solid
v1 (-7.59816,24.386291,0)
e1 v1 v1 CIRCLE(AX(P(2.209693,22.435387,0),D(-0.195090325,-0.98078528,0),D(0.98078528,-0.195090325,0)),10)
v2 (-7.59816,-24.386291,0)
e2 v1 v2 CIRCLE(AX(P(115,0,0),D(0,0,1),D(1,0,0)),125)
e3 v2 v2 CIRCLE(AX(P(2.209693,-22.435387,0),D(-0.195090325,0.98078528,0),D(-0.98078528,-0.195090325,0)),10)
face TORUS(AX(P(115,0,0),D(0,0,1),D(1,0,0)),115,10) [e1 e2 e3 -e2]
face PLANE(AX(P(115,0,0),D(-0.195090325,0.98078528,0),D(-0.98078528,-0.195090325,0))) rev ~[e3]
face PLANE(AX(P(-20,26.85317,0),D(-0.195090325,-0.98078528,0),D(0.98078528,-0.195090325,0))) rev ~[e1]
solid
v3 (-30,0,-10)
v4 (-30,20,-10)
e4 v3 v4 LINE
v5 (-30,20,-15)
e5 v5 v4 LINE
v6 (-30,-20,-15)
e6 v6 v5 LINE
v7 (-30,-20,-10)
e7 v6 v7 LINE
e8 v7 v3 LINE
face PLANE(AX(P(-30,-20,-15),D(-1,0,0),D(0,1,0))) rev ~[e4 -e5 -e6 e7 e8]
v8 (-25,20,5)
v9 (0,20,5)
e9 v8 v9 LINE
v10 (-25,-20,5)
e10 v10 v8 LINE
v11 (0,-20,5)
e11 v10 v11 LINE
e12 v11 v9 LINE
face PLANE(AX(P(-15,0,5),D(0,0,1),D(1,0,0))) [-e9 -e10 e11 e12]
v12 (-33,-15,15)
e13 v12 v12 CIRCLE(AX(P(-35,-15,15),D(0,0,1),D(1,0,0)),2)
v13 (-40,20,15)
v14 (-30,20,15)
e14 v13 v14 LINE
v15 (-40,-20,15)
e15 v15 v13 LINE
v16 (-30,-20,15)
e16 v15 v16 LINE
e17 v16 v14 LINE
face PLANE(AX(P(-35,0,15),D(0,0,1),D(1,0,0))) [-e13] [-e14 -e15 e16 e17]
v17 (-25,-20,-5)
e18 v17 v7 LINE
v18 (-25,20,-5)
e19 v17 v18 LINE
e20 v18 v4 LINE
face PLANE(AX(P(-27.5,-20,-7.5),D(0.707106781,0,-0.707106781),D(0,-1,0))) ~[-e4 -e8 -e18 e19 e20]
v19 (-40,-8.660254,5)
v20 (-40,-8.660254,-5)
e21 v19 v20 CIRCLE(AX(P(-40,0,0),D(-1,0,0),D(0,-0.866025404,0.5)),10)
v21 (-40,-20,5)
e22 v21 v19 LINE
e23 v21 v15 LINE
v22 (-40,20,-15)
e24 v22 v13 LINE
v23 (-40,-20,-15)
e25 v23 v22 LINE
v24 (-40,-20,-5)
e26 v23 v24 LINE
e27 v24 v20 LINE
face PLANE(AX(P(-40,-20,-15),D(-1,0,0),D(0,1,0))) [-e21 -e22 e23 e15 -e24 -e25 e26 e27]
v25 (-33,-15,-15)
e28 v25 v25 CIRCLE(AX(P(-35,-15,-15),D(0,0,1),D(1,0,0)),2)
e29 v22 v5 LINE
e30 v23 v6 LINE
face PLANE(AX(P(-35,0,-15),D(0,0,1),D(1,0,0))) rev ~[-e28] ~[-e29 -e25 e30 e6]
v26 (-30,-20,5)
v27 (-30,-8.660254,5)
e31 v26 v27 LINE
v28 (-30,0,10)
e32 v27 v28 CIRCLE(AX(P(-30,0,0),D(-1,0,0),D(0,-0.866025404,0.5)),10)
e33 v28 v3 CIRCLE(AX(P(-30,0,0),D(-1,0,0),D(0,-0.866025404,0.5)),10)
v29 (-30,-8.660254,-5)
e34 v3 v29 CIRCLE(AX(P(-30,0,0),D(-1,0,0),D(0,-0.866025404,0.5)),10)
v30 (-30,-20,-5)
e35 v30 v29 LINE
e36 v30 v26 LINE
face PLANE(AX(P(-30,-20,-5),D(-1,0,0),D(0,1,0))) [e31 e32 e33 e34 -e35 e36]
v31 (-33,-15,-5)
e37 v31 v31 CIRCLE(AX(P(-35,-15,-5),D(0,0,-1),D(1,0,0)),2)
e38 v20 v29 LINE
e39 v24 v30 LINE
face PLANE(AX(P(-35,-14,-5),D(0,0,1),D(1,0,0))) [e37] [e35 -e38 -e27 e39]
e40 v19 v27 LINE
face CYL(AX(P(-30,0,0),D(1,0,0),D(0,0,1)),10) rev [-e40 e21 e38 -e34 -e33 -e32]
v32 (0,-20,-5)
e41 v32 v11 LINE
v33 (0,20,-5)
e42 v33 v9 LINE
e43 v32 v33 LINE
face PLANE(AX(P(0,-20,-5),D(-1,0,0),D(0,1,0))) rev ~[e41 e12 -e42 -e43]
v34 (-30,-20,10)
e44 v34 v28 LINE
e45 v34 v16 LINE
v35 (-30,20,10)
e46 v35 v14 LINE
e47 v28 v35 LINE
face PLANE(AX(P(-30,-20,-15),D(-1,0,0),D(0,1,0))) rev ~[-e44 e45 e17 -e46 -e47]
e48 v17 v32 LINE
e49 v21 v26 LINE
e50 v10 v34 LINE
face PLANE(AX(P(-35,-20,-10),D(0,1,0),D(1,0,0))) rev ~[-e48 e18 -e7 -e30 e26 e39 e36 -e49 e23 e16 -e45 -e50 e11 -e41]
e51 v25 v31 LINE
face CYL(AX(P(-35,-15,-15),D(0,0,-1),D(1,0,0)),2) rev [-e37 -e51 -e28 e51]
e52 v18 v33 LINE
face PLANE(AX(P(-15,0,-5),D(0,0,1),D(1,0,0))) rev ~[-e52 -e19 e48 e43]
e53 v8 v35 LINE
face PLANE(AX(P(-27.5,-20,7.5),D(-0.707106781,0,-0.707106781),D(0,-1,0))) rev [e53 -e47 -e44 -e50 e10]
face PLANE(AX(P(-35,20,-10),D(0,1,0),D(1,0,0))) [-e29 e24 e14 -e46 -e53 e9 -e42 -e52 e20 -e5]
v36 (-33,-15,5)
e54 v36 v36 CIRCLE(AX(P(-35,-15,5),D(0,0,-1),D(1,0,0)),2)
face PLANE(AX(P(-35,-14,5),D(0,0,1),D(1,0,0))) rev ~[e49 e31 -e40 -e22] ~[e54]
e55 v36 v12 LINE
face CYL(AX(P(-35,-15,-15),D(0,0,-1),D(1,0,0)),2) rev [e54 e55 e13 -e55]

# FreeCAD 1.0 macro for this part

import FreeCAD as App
import Part
import Sketcher
Q = App.Units.Quantity


def edges_at(feature, points):
    """Names of the edges that pass closest to the given points."""
    edges = feature.Shape.Edges
    near = lambda p: min(range(len(edges)), key=lambda i: edges[i].distToShape(Part.Vertex(*p))[0])
    return sorted({f"Edge{near(p) + 1}" for p in points})


def add_polygon(sketch, points):
    """Adds a closed chain of lines whose ends are joined by coincident constraints."""
    first, n = sketch.GeometryCount, len(points)
    for a, b in zip(points, points[1:] + points[:1]):
        sketch.addGeometry(Part.LineSegment(App.Vector(*a, 0), App.Vector(*b, 0)), False)
    for i in range(n):
        sketch.addConstraint(Sketcher.Constraint("Coincident", first + i, 2, first + (i + 1) % n, 1))

doc = App.newDocument("Part")
body = doc.addObject("PartDesign::Body", "Body")

# Sketch on XY plane
sketch1 = body.newObject("Sketcher::SketchObject", "Sketch")
sketch1.AttachmentSupport = (doc.getObject("XY_Plane"), [""])
sketch1.MapMode = "FlatFace"
add_polygon(sketch1, [(115, 0), (-20, 27), (-20, -27)])  # lines 0-2
sketch1.addConstraint(Sketcher.Constraint("Vertical", 1))
sketch1.addConstraint(Sketcher.Constraint("PointOnObject", 2, 2, -1))
sketch1.addConstraint(Sketcher.Constraint("Equal", 0, 2))
sketch1.addConstraint(Sketcher.Constraint("DistanceX", 0, 2, -1, 1, Q("20 mm")))
sketch1.addConstraint(Sketcher.Constraint("DistanceX", -1, 1, 2, 2, Q("115 mm")))
sketch1.addConstraint(Sketcher.Constraint("Angle", 0, Q("168.75 deg")))
pad1 = body.newObject("PartDesign::Pad", "Pad")
pad1.Profile = sketch1
pad1.Type = "TwoLengths"
pad1.Length = 15
pad1.Length2 = 15
body2 = doc.addObject("PartDesign::Body", "Body001")

# Sketch on XZ plane
sketch2 = body2.newObject("Sketcher::SketchObject", "Sketch001")
sketch2.AttachmentSupport = (doc.getObject("XZ_Plane001"), [""])
sketch2.MapMode = "FlatFace"
sketch2.addGeometry(Part.Circle(App.Vector(230, 0, 0), App.Vector(0, 0, 1), 10), False)
sketch2.addGeometry(Part.LineSegment(App.Vector(115, 0, 0), App.Vector(115, 10, 0)), True)  # axis
sketch2.addConstraint(Sketcher.Constraint("Vertical", 1))
sketch2.addConstraint(Sketcher.Constraint("PointOnObject", 0, 3, -1))
sketch2.addConstraint(Sketcher.Constraint("PointOnObject", 1, 1, -1))
sketch2.addConstraint(Sketcher.Constraint("Diameter", 0, Q("20 mm")))
sketch2.addConstraint(Sketcher.Constraint("DistanceY", 1, 1, 1, 2, Q("10 mm")))
sketch2.addConstraint(Sketcher.Constraint("DistanceX", -1, 1, 0, 3, Q("230 mm")))
sketch2.addConstraint(Sketcher.Constraint("DistanceX", -1, 1, 1, 1, Q("115 mm")))
revolution = body2.newObject("PartDesign::Revolution", "Revolution")
revolution.Profile = sketch2
revolution.ReferenceAxis = (sketch2, ["Axis0"])
revolution.Angle = 360
doc.recompute()

boolean = body2.newObject("PartDesign::Boolean", "Boolean")
boolean.Type = "Common"
boolean.addObjects([body])
body3 = doc.addObject("PartDesign::Body", "Body002")

# Sketch on XY plane
sketch3 = body3.newObject("Sketcher::SketchObject", "Sketch002")
sketch3.AttachmentSupport = (doc.getObject("XY_Plane002"), [""])
sketch3.MapMode = "FlatFace"
sketch3.AttachmentOffset = App.Placement(App.Vector(0, 0, -15), App.Rotation())
sketch3.addGeometry(Part.Circle(App.Vector(-35, -15, 0), App.Vector(0, 0, 1), 2), False)
sketch3.addConstraint(Sketcher.Constraint("Diameter", 0, Q("4 mm")))
sketch3.addConstraint(Sketcher.Constraint("DistanceX", 0, 3, -1, 1, Q("35 mm")))
sketch3.addConstraint(Sketcher.Constraint("DistanceY", 0, 3, -1, 1, Q("15 mm")))
pad2 = body3.newObject("PartDesign::Pad", "Pad001")
pad2.Profile = sketch3
pad2.Length = 30
body4 = doc.addObject("PartDesign::Body", "Body003")

# Sketch on XY plane
sketch4 = body4.newObject("Sketcher::SketchObject", "Sketch003")
sketch4.AttachmentSupport = (doc.getObject("XY_Plane003"), [""])
sketch4.MapMode = "FlatFace"
sketch4.AttachmentOffset = App.Placement(App.Vector(0, 0, -5), App.Rotation())
add_polygon(sketch4, [(-40, -8), (-40, -20), (-30, -20), (-30, -8)])  # lines 0-3
sketch4.addConstraint(Sketcher.Constraint("Vertical", 0))
sketch4.addConstraint(Sketcher.Constraint("Horizontal", 1))
sketch4.addConstraint(Sketcher.Constraint("Vertical", 2))
sketch4.addConstraint(Sketcher.Constraint("Horizontal", 3))
sketch4.addConstraint(Sketcher.Constraint("DistanceX", 1, 1, 1, 2, Q("10 mm")))
sketch4.addConstraint(Sketcher.Constraint("DistanceY", 0, 2, 0, 1, Q("12 mm")))
sketch4.addConstraint(Sketcher.Constraint("DistanceX", 0, 2, -1, 1, Q("40 mm")))
sketch4.addConstraint(Sketcher.Constraint("DistanceY", 0, 2, -1, 1, Q("20 mm")))
pad3 = body4.newObject("PartDesign::Pad", "Pad002")
pad3.Profile = sketch4
pad3.Length = 10
body5 = doc.addObject("PartDesign::Body", "Body004")

# Sketch on XY plane
sketch5 = body5.newObject("Sketcher::SketchObject", "Sketch004")
sketch5.AttachmentSupport = (doc.getObject("XY_Plane004"), [""])
sketch5.MapMode = "FlatFace"
sketch5.addGeometry(Part.Circle(App.Vector(0, 0, 0), App.Vector(0, 0, 1), 10), False)
sketch5.addConstraint(Sketcher.Constraint("Coincident", 0, 3, -1, 1))
sketch5.addConstraint(Sketcher.Constraint("Diameter", 0, Q("20 mm")))
pad4 = body5.newObject("PartDesign::Pad", "Pad003")
pad4.Profile = sketch5
pad4.Length = 10
body6 = doc.addObject("PartDesign::Body", "Body005")
doc.recompute()

body5.Placement = App.Placement(App.Vector(0, 0, 0), App.Rotation(App.Vector(0, 1, 0), 270))
boolean2 = body6.newObject("PartDesign::Boolean", "Boolean001")
boolean2.Type = "Fuse"
boolean2.addObjects([body5])
body7 = doc.addObject("PartDesign::Body", "Body006")
body7.AllowCompound = True
doc.recompute()

body6.Placement = App.Placement(App.Vector(-30, 0, 0), App.Rotation(App.Vector(0, 0, 1), 0))
boolean3 = body7.newObject("PartDesign::Boolean", "Boolean002")
boolean3.Type = "Fuse"
boolean3.addObjects([body6])
doc.recompute()

boolean4 = body7.newObject("PartDesign::Boolean", "Boolean003")
boolean4.Type = "Fuse"
boolean4.addObjects([body3])
doc.recompute()

boolean5 = body7.newObject("PartDesign::Boolean", "Boolean004")
boolean5.Type = "Fuse"
boolean5.addObjects([body4])
body8 = doc.addObject("PartDesign::Body", "Body007")

# Sketch on XY plane
sketch6 = body8.newObject("Sketcher::SketchObject", "Sketch005")
sketch6.AttachmentSupport = (doc.getObject("XY_Plane007"), [""])
sketch6.MapMode = "FlatFace"
sketch6.AttachmentOffset = App.Placement(App.Vector(0, 0, -15), App.Rotation())
add_polygon(sketch6, [(-40, 20), (-40, -20), (-30, -20), (-30, 20)])  # lines 0-3
sketch6.addConstraint(Sketcher.Constraint("Vertical", 0))
sketch6.addConstraint(Sketcher.Constraint("Horizontal", 1))
sketch6.addConstraint(Sketcher.Constraint("Vertical", 2))
sketch6.addConstraint(Sketcher.Constraint("Horizontal", 3))
sketch6.addConstraint(Sketcher.Constraint("DistanceX", 1, 1, 1, 2, Q("10 mm")))
sketch6.addConstraint(Sketcher.Constraint("DistanceY", 0, 2, 0, 1, Q("40 mm")))
sketch6.addConstraint(Sketcher.Constraint("DistanceX", 0, 2, -1, 1, Q("40 mm")))
sketch6.addConstraint(Sketcher.Constraint("DistanceY", 0, 2, -1, 1, Q("20 mm")))
pad5 = body8.newObject("PartDesign::Pad", "Pad004")
pad5.Profile = sketch6
pad5.Length = 30
body9 = doc.addObject("PartDesign::Body", "Body008")

# Sketch on XY plane
sketch7 = body9.newObject("Sketcher::SketchObject", "Sketch006")
sketch7.AttachmentSupport = (doc.getObject("XY_Plane008"), [""])
sketch7.MapMode = "FlatFace"
sketch7.AttachmentOffset = App.Placement(App.Vector(0, 0, -10), App.Rotation())
add_polygon(sketch7, [(-35, 20), (-35, -20), (-25, -20), (-25, 20)])  # lines 0-3
sketch7.addConstraint(Sketcher.Constraint("Vertical", 0))
sketch7.addConstraint(Sketcher.Constraint("Horizontal", 1))
sketch7.addConstraint(Sketcher.Constraint("Vertical", 2))
sketch7.addConstraint(Sketcher.Constraint("Horizontal", 3))
sketch7.addConstraint(Sketcher.Constraint("DistanceX", 1, 1, 1, 2, Q("10 mm")))
sketch7.addConstraint(Sketcher.Constraint("DistanceY", 0, 2, 0, 1, Q("40 mm")))
sketch7.addConstraint(Sketcher.Constraint("DistanceX", 0, 2, -1, 1, Q("35 mm")))
sketch7.addConstraint(Sketcher.Constraint("DistanceY", 0, 2, -1, 1, Q("20 mm")))
pad6 = body9.newObject("PartDesign::Pad", "Pad005")
pad6.Profile = sketch7
pad6.Length = 20
doc.recompute()

chamfer = body9.newObject("PartDesign::Chamfer", "Chamfer")
chamfer.Base = (pad6, edges_at(pad6, [(-25, 0, 10), (-25, 0, -10)]))
chamfer.Size = 5
body10 = doc.addObject("PartDesign::Body", "Body009")

# Sketch on XY plane
sketch8 = body10.newObject("Sketcher::SketchObject", "Sketch007")
sketch8.AttachmentSupport = (doc.getObject("XY_Plane009"), [""])
sketch8.MapMode = "FlatFace"
sketch8.AttachmentOffset = App.Placement(App.Vector(0, 0, -5), App.Rotation())
add_polygon(sketch8, [(-30, 20), (-30, -20), (0, -20), (0, 20)])  # lines 0-3
sketch8.addConstraint(Sketcher.Constraint("Vertical", 0))
sketch8.addConstraint(Sketcher.Constraint("Horizontal", 1))
sketch8.addConstraint(Sketcher.Constraint("Vertical", 2))
sketch8.addConstraint(Sketcher.Constraint("Horizontal", 3))
sketch8.addConstraint(Sketcher.Constraint("Symmetric", 1, 2, 2, 2, -1, 1))
sketch8.addConstraint(Sketcher.Constraint("DistanceX", 1, 1, 1, 2, Q("30 mm")))
sketch8.addConstraint(Sketcher.Constraint("DistanceY", 0, 2, 0, 1, Q("40 mm")))
pad7 = body10.newObject("PartDesign::Pad", "Pad006")
pad7.Profile = sketch8
pad7.Length = 10
doc.recompute()

boolean6 = body10.newObject("PartDesign::Boolean", "Boolean005")
boolean6.Type = "Fuse"
boolean6.addObjects([body8])
doc.recompute()

boolean7 = body10.newObject("PartDesign::Boolean", "Boolean006")
boolean7.Type = "Fuse"
boolean7.addObjects([body9])
doc.recompute()

boolean8 = body10.newObject("PartDesign::Boolean", "Boolean007")
boolean8.Type = "Cut"
boolean8.addObjects([body7])

doc.recompute()
